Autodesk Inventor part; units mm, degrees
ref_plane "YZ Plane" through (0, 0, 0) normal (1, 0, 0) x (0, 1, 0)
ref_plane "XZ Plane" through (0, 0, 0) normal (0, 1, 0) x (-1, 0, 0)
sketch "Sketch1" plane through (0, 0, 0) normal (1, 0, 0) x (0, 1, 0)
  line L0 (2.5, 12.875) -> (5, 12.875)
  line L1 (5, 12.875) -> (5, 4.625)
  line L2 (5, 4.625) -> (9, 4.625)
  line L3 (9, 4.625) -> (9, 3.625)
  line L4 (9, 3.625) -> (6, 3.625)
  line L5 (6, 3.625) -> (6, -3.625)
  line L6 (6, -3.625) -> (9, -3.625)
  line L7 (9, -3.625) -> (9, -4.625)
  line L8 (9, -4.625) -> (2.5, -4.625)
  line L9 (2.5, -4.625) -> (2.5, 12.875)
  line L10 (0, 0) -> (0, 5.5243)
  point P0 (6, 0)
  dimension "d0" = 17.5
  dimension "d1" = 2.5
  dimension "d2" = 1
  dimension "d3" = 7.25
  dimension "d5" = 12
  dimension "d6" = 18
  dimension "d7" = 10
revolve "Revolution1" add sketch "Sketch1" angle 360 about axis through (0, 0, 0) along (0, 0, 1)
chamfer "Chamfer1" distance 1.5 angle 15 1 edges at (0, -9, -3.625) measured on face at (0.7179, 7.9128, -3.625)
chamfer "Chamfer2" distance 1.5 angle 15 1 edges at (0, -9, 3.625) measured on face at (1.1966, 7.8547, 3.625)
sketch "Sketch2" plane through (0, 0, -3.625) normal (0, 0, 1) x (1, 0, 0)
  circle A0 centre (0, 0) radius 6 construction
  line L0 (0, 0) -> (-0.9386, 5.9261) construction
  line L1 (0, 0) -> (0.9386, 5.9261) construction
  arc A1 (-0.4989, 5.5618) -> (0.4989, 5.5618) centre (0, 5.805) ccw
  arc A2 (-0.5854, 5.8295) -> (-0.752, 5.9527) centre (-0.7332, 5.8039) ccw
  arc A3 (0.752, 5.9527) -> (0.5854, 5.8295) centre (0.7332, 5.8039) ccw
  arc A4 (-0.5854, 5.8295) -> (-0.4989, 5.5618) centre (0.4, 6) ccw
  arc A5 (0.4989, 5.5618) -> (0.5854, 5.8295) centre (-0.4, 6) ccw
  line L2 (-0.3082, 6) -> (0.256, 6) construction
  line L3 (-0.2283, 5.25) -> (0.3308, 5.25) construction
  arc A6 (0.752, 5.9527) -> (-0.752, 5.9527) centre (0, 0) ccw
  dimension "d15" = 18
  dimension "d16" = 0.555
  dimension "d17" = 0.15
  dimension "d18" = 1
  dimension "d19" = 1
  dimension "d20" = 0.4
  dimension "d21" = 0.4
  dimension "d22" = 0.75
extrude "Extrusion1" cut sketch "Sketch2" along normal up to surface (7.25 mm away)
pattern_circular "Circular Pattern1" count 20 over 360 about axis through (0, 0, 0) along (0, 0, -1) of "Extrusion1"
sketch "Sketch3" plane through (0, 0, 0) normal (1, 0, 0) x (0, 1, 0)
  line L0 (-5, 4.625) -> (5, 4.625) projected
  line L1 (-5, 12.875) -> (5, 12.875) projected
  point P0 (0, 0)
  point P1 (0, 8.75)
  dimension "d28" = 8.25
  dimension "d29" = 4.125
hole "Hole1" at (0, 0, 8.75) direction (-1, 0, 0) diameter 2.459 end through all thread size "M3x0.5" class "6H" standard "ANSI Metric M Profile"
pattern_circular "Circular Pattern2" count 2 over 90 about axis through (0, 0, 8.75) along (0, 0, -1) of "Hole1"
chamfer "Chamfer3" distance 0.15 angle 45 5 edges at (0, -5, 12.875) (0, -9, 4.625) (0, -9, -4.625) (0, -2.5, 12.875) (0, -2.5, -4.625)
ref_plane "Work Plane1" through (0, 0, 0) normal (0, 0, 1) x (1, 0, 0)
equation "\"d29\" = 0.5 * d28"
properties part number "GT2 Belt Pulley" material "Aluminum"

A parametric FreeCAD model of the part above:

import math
import FreeCAD as App
import Part
import Sketcher

V = App.Vector


def edges_at(feature, points):
    """Names of the edges that pass closest to the given points."""
    edges = feature.Shape.Edges
    near = lambda p: min(range(len(edges)), key=lambda i: edges[i].distToShape(Part.Vertex(*p))[0])
    return sorted({f"Edge{near(p) + 1}" for p in points})

doc = App.newDocument("Part")
body = doc.addObject("PartDesign::Body", "Body")

# Sketch on YZ plane
sketch1 = body.newObject("Sketcher::SketchObject", "Sketch")
sketch1.AttachmentSupport = (doc.getObject("YZ_Plane"), [""])
sketch1.MapMode = "FlatFace"
sketch1.addGeometry([
    Part.LineSegment(V(5, 12.9, 0), V(2.5, 12.9, 0)),  # 0
    Part.LineSegment(V(2.5, 12.9, 0), V(2.5, -4.6, 0)),  # 1
    Part.LineSegment(V(2.5, -4.6, 0), V(9, -4.6, 0)),  # 2
    Part.LineSegment(V(9, -4.6, 0), V(9, -3.6, 0)),  # 3
    Part.LineSegment(V(9, -3.6, 0), V(6, -3.6, 0)),  # 4
    Part.LineSegment(V(6, -3.6, 0), V(6, 3.6, 0)),  # 5
    Part.LineSegment(V(6, 3.6, 0), V(9, 3.6, 0)),  # 6
    Part.LineSegment(V(9, 3.6, 0), V(9, 4.6, 0)),  # 7
    Part.LineSegment(V(9, 4.6, 0), V(5, 4.6, 0)),  # 8
    Part.LineSegment(V(5, 4.6, 0), V(5, 12.9, 0)),  # 9
], False)
sketch1.addConstraint([
    Sketcher.Constraint("Coincident", 0, 2, 1, 1),
    Sketcher.Constraint("Coincident", 1, 2, 2, 1),
    Sketcher.Constraint("Coincident", 2, 2, 3, 1),
    Sketcher.Constraint("Coincident", 3, 2, 4, 1),
    Sketcher.Constraint("Coincident", 4, 2, 5, 1),
    Sketcher.Constraint("Coincident", 5, 2, 6, 1),
    Sketcher.Constraint("Coincident", 6, 2, 7, 1),
    Sketcher.Constraint("Coincident", 7, 2, 8, 1),
    Sketcher.Constraint("Coincident", 8, 2, 9, 1),
    Sketcher.Constraint("Coincident", 9, 2, 0, 1),
    Sketcher.Constraint("Horizontal", 0),
    Sketcher.Constraint("Vertical", 1),
    Sketcher.Constraint("Horizontal", 2),
    Sketcher.Constraint("Vertical", 3),
    Sketcher.Constraint("Horizontal", 4),
    Sketcher.Constraint("Vertical", 5),
    Sketcher.Constraint("Horizontal", 6),
    Sketcher.Constraint("Vertical", 7),
    Sketcher.Constraint("Horizontal", 8),
    Sketcher.Constraint("Vertical", 9),
    Sketcher.Constraint("Symmetric", 3, 2, 6, 2, -1),
    Sketcher.Constraint("Equal", 3, 7),
    Sketcher.Constraint("DistanceY", 3, 1, 3, 2, 1.0),
    Sketcher.Constraint("DistanceX", 0, 2, 0, 1, 2.5),
    Sketcher.Constraint("DistanceY", 1, 2, 1, 1, 17.5),
    Sketcher.Constraint("DistanceX", 8, 2, 5, 2, 1.0),
    Sketcher.Constraint("DistanceY", 5, 1, 5, 2, 7.25),
    Sketcher.Constraint("DistanceX", -1, 1, 0, 2, 2.5),
    Sketcher.Constraint("DistanceX", 4, 2, 4, 1, 3.0),
])
revolution = body.newObject("PartDesign::Revolution", "Revolution")
revolution.Profile = sketch1
revolution.ReferenceAxis = (sketch1, ["V_Axis"])
revolution.Angle = 360
doc.recompute()

chamfer = body.newObject("PartDesign::Chamfer", "Chamfer")
chamfer.Base = (revolution, edges_at(revolution, [(0, -9, -3.625)]))
chamfer.ChamferType = "Distance and Angle"
chamfer.Size = 1.5
chamfer.Angle = 15
chamfer.FlipDirection = True
doc.recompute()

chamfer2 = body.newObject("PartDesign::Chamfer", "Chamfer001")
chamfer2.Base = (chamfer, edges_at(chamfer, [(0, -9, 3.625)]))
chamfer2.ChamferType = "Distance and Angle"
chamfer2.Size = 1.5
chamfer2.Angle = 15

# Sketch on XY plane
sketch2 = body.newObject("Sketcher::SketchObject", "Sketch001")
sketch2.AttachmentSupport = (doc.getObject("XY_Plane"), [""])
sketch2.MapMode = "FlatFace"
sketch2.AttachmentOffset = App.Placement(V(0, 0, -3.625), App.Rotation())
sketch2.addGeometry([
    Part.ArcOfCircle(Part.Circle(V(0.39895, 5.999741, 0), V(0, 0, 1), 0.998963), math.radians(-170.187897), math.radians(-153.998438)),  # 0
    Part.ArcOfCircle(Part.Circle(V(0, 5.805, 0), V(0, 0, 1), 0.55502), math.radians(-154.012042), math.radians(-25.987958)),  # 1
    Part.ArcOfCircle(Part.Circle(V(-0.401006, 6.000405, 0), V(0, 0, 1), 1.001102), math.radians(-25.984151), math.radians(-9.829515)),  # 2
    Part.ArcOfCircle(Part.Circle(V(0.7332, 5.8039, 0), V(0, 0, 1), 0.149983), math.radians(82.799171), math.radians(170.173461)),  # 3
    Part.ArcOfCircle(Part.Circle(V(0, 0, 0), V(0, 0, 1), 6.000012), math.radians(82.800008), math.radians(97.199992)),  # 4
    Part.ArcOfCircle(Part.Circle(V(-0.7332, 5.8039, 0), V(0, 0, 1), 0.150001), math.radians(9.826539), math.radians(97.200829)),  # 5
], False)
sketch2.addConstraint([
    Sketcher.Constraint("Coincident", 0, 2, 1, 1),
    Sketcher.Constraint("Coincident", 1, 2, 2, 1),
    Sketcher.Constraint("Coincident", 2, 2, 3, 2),
    Sketcher.Constraint("Coincident", 3, 1, 4, 1),
    Sketcher.Constraint("Coincident", 4, 2, 5, 2),
    Sketcher.Constraint("Coincident", 5, 1, 0, 1),
    Sketcher.Constraint("Coincident", 4, 3, -1, 1),
    Sketcher.Constraint("PointOnObject", 1, 3, -2),
    Sketcher.Constraint("Radius", 3, 0.15),
    Sketcher.Constraint("Radius", 5, 0.15),
    Sketcher.Constraint("Radius", 1, 0.555),
    Sketcher.Constraint("Radius", 4, 6.0),
    Sketcher.Constraint("Radius", 0, 0.999),
    Sketcher.Constraint("Radius", 2, 1.001),
    Sketcher.Constraint("DistanceX", 2, 3, 0, 3, 0.8),
    Sketcher.Constraint("DistanceX", 0, 3, 1, 2, 0.1),
    Sketcher.Constraint("DistanceX", -1, 1, 0, 3, 0.399),
    Sketcher.Constraint("DistanceY", -1, 1, 1, 3, 5.805),
    Sketcher.Constraint("DistanceX", 0, 2, -1, 1, 0.499),
    Sketcher.Constraint("DistanceX", -1, 1, 3, 1, 0.752),
    Sketcher.Constraint("DistanceX", 4, 2, -1, 1, 0.752),
    Sketcher.Constraint("DistanceY", 2, 2, 2, 3, 0.171),
    Sketcher.Constraint("DistanceY", 5, 1, 2, 3, 0.171),
])
pocket1 = body.newObject("PartDesign::Pocket", "Pocket")
pocket1.Profile = sketch2
pocket1.Length = 7.25
pocket1.Reversed = True
doc.recompute()

polarpattern = body.newObject("PartDesign::PolarPattern", "PolarPattern")
polarpattern.Originals = [pocket1]
polarpattern.Axis = (doc.getObject("Z_Axis"), [""])
polarpattern.Angle = 360
polarpattern.Occurrences = 20
body.Tip = polarpattern

# Sketch on YZ plane
sketch3 = body.newObject("Sketcher::SketchObject", "Sketch002")
sketch3.AttachmentSupport = (doc.getObject("YZ_Plane"), [""])
sketch3.MapMode = "FlatFace"
sketch3.addGeometry(Part.Circle(V(0, 8.8, 0), V(0, 0, 1), 1.2), False)
sketch3.addConstraint([
    Sketcher.Constraint("PointOnObject", 0, 3, -2),
    Sketcher.Constraint("Diameter", 0, 2.459),
    Sketcher.Constraint("DistanceY", -1, 1, 0, 3, 8.75),
])
doc.recompute()
hole = body.newObject("PartDesign::Hole", "Hole")
hole.Profile = sketch3
hole.ThreadType = "None"
hole.Diameter = 2.459
hole.DepthType = "ThroughAll"
doc.recompute()

polarpattern2 = body.newObject("PartDesign::PolarPattern", "PolarPattern001")
polarpattern2.Originals = [hole]
polarpattern2.Axis = (doc.getObject("Z_Axis"), [""])
polarpattern2.Angle = 90
polarpattern2.Occurrences = 2
polarpattern2.Reversed = True
body.Tip = polarpattern2
doc.recompute()

chamfer3 = body.newObject("PartDesign::Chamfer", "Chamfer002")
chamfer3.Base = (polarpattern2, edges_at(polarpattern2, [
    (0, -5, 12.875),
    (0, -9, 4.625),
    (0, -9, -4.625),
    (0, -2.5, 12.875),
    (0, -2.5, -4.625),
]))
chamfer3.Size = 0.15

doc.recompute()
